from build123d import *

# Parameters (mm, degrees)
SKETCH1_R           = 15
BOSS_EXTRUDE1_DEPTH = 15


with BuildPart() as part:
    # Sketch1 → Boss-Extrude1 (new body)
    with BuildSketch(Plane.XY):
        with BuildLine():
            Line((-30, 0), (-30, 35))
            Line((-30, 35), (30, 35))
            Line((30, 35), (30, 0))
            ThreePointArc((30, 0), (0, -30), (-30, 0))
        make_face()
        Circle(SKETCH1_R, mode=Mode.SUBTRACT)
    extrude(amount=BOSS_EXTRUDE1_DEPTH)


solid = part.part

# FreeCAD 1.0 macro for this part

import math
import FreeCAD as App
import Part
import Sketcher

V = App.Vector

doc = App.newDocument("Part")
body = doc.addObject("PartDesign::Body", "Body")

# Sketch on XY plane
sketch1 = body.newObject("Sketcher::SketchObject", "Sketch")
sketch1.AttachmentSupport = (doc.getObject("XY_Plane"), [""])
sketch1.MapMode = "FlatFace"
sketch1.addGeometry([
    Part.LineSegment(V(-30, 35, 0), V(-30, 0, 0)),  # 0
    Part.ArcOfCircle(Part.Circle(V(0, 0, 0), V(0, 0, 1), 30), math.radians(180), math.radians(360)),  # 1
    Part.LineSegment(V(30, 0, 0), V(30, 35, 0)),  # 2
    Part.LineSegment(V(30, 35, 0), V(-30, 35, 0)),  # 3
    Part.Circle(V(0, 0, 0), V(0, 0, 1), 15),  # 4
], False)
sketch1.addConstraint([
    Sketcher.Constraint("Tangent", 0, 2, 1, 1),
    Sketcher.Constraint("Tangent", 1, 2, 2, 1),
    Sketcher.Constraint("Coincident", 2, 2, 3, 1),
    Sketcher.Constraint("Coincident", 3, 2, 0, 1),
    Sketcher.Constraint("Vertical", 0),
    Sketcher.Constraint("Vertical", 2),
    Sketcher.Constraint("Horizontal", 3),
    Sketcher.Constraint("Coincident", 1, 3, -1, 1),
    Sketcher.Constraint("Coincident", 4, 3, -1, 1),
    Sketcher.Constraint("Diameter", 4, 30.0),
    Sketcher.Constraint("Radius", 1, 30.0),
    Sketcher.Constraint("DistanceY", 0, 2, 0, 1, 35.0),
])
pad1 = body.newObject("PartDesign::Pad", "Pad")
pad1.Profile = sketch1
pad1.Length = 15

doc.recompute()
